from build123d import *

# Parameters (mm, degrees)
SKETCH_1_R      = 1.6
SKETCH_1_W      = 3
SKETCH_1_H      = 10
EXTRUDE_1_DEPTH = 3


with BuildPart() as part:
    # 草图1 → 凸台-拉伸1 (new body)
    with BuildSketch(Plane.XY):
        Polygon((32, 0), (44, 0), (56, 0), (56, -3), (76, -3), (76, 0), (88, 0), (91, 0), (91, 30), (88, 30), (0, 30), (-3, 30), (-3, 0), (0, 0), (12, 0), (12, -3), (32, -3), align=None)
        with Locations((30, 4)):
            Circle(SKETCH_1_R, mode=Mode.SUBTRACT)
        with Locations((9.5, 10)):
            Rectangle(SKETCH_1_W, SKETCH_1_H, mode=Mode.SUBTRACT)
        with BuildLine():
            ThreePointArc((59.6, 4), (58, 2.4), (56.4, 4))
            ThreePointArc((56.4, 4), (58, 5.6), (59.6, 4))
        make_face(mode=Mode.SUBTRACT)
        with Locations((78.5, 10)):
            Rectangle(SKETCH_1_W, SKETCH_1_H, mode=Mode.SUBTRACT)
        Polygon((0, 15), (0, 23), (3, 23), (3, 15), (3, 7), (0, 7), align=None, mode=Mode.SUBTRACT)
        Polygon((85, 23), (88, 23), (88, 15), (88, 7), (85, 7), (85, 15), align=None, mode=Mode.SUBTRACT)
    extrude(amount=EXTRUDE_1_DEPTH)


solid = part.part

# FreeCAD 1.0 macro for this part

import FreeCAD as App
import Part
import Sketcher

doc = App.newDocument("Part")
params = doc.addObject("Spreadsheet::Sheet", "Params")
for row, (alias, value) in enumerate([
    ("sketch1_diameter", "3.2 mm"),
    ("sketch1_width", "24 mm"),
    ("sketch1_width2", "20 mm"),
    ("sketch1_width3", "15 mm"),
    ("sketch1_width4", "3 mm"),
    ("pad1_length", "3 mm"),
], start=1):
    params.set(f"A{row}", alias)
    params.set(f"B{row}", "=" + value)
    params.setAlias(f"B{row}", alias)

body = doc.addObject("PartDesign::Body", "Body")

sketch1 = doc.addObject("Sketcher::SketchObject", "Sketch")
body.addObject(sketch1)
sketch1.AttachmentSupport = (doc.XY_Plane, [""])
sketch1.MapMode = "FlatFace"
sketch1.addGeometry(Part.LineSegment(App.Vector(32, 0, 0), App.Vector(56, 0, 0)), False)
sketch1.addGeometry(Part.LineSegment(App.Vector(56, 0, 0), App.Vector(56, -3, 0)), False)
sketch1.addGeometry(Part.LineSegment(App.Vector(56, -3, 0), App.Vector(76, -3, 0)), False)
sketch1.addGeometry(Part.LineSegment(App.Vector(76, -3, 0), App.Vector(76, 0, 0)), False)
sketch1.addGeometry(Part.LineSegment(App.Vector(76, 0, 0), App.Vector(91, 0, 0)), False)
sketch1.addGeometry(Part.LineSegment(App.Vector(91, 0, 0), App.Vector(91, 30, 0)), False)
sketch1.addGeometry(Part.LineSegment(App.Vector(91, 30, 0), App.Vector(-3, 30, 0)), False)
sketch1.addGeometry(Part.LineSegment(App.Vector(-3, 30, 0), App.Vector(-3, 0, 0)), False)
sketch1.addGeometry(Part.LineSegment(App.Vector(-3, 0, 0), App.Vector(12, 0, 0)), False)
sketch1.addGeometry(Part.LineSegment(App.Vector(12, 0, 0), App.Vector(12, -3, 0)), False)
sketch1.addGeometry(Part.LineSegment(App.Vector(12, -3, 0), App.Vector(32, -3, 0)), False)
sketch1.addGeometry(Part.LineSegment(App.Vector(32, -3, 0), App.Vector(32, 0, 0)), False)
sketch1.addGeometry(Part.Circle(App.Vector(30, 4, 0), App.Vector(0, 0, 1), 1.6), False)
sketch1.addGeometry(Part.LineSegment(App.Vector(11, 5, 0), App.Vector(8, 5, 0)), False)
sketch1.addGeometry(Part.LineSegment(App.Vector(8, 5, 0), App.Vector(8, 15, 0)), False)
sketch1.addGeometry(Part.LineSegment(App.Vector(8, 15, 0), App.Vector(11, 15, 0)), False)
sketch1.addGeometry(Part.LineSegment(App.Vector(11, 15, 0), App.Vector(11, 5, 0)), False)
sketch1.addGeometry(Part.Circle(App.Vector(58, 4, 0), App.Vector(0, 0, 1), 1.6), False)
sketch1.addGeometry(Part.LineSegment(App.Vector(80, 5, 0), App.Vector(77, 5, 0)), False)
sketch1.addGeometry(Part.LineSegment(App.Vector(77, 5, 0), App.Vector(77, 15, 0)), False)
sketch1.addGeometry(Part.LineSegment(App.Vector(77, 15, 0), App.Vector(80, 15, 0)), False)
sketch1.addGeometry(Part.LineSegment(App.Vector(80, 15, 0), App.Vector(80, 5, 0)), False)
sketch1.addGeometry(Part.LineSegment(App.Vector(0, 7, 0), App.Vector(0, 23, 0)), False)
sketch1.addGeometry(Part.LineSegment(App.Vector(0, 23, 0), App.Vector(3, 23, 0)), False)
sketch1.addGeometry(Part.LineSegment(App.Vector(3, 23, 0), App.Vector(3, 7, 0)), False)
sketch1.addGeometry(Part.LineSegment(App.Vector(3, 7, 0), App.Vector(0, 7, 0)), False)
sketch1.addGeometry(Part.LineSegment(App.Vector(85, 7, 0), App.Vector(85, 23, 0)), False)
sketch1.addGeometry(Part.LineSegment(App.Vector(85, 23, 0), App.Vector(88, 23, 0)), False)
sketch1.addGeometry(Part.LineSegment(App.Vector(88, 23, 0), App.Vector(88, 7, 0)), False)
sketch1.addGeometry(Part.LineSegment(App.Vector(88, 7, 0), App.Vector(85, 7, 0)), False)
sketch1.addConstraint(Sketcher.Constraint("Coincident", 0, 2, 1, 1))
sketch1.addConstraint(Sketcher.Constraint("Coincident", 1, 2, 2, 1))
sketch1.addConstraint(Sketcher.Constraint("Coincident", 2, 2, 3, 1))
sketch1.addConstraint(Sketcher.Constraint("Coincident", 3, 2, 4, 1))
sketch1.addConstraint(Sketcher.Constraint("Coincident", 4, 2, 5, 1))
sketch1.addConstraint(Sketcher.Constraint("Coincident", 5, 2, 6, 1))
sketch1.addConstraint(Sketcher.Constraint("Coincident", 6, 2, 7, 1))
sketch1.addConstraint(Sketcher.Constraint("Coincident", 7, 2, 8, 1))
sketch1.addConstraint(Sketcher.Constraint("Coincident", 8, 2, 9, 1))
sketch1.addConstraint(Sketcher.Constraint("Coincident", 9, 2, 10, 1))
sketch1.addConstraint(Sketcher.Constraint("Coincident", 10, 2, 11, 1))
sketch1.addConstraint(Sketcher.Constraint("Coincident", 11, 2, 0, 1))
sketch1.addConstraint(Sketcher.Constraint("Coincident", 13, 2, 14, 1))
sketch1.addConstraint(Sketcher.Constraint("Coincident", 14, 2, 15, 1))
sketch1.addConstraint(Sketcher.Constraint("Coincident", 15, 2, 16, 1))
sketch1.addConstraint(Sketcher.Constraint("Coincident", 16, 2, 13, 1))
sketch1.addConstraint(Sketcher.Constraint("Coincident", 18, 2, 19, 1))
sketch1.addConstraint(Sketcher.Constraint("Coincident", 19, 2, 20, 1))
sketch1.addConstraint(Sketcher.Constraint("Coincident", 20, 2, 21, 1))
sketch1.addConstraint(Sketcher.Constraint("Coincident", 21, 2, 18, 1))
sketch1.addConstraint(Sketcher.Constraint("Coincident", 22, 2, 23, 1))
sketch1.addConstraint(Sketcher.Constraint("Coincident", 23, 2, 24, 1))
sketch1.addConstraint(Sketcher.Constraint("Coincident", 24, 2, 25, 1))
sketch1.addConstraint(Sketcher.Constraint("Coincident", 25, 2, 22, 1))
sketch1.addConstraint(Sketcher.Constraint("Coincident", 26, 2, 27, 1))
sketch1.addConstraint(Sketcher.Constraint("Coincident", 27, 2, 28, 1))
sketch1.addConstraint(Sketcher.Constraint("Coincident", 28, 2, 29, 1))
sketch1.addConstraint(Sketcher.Constraint("Coincident", 29, 2, 26, 1))
sketch1.addConstraint(Sketcher.Constraint("Horizontal", 0))
sketch1.addConstraint(Sketcher.Constraint("Vertical", 1))
sketch1.addConstraint(Sketcher.Constraint("Horizontal", 2))
sketch1.addConstraint(Sketcher.Constraint("Vertical", 3))
sketch1.addConstraint(Sketcher.Constraint("Horizontal", 4))
sketch1.addConstraint(Sketcher.Constraint("Vertical", 5))
sketch1.addConstraint(Sketcher.Constraint("Horizontal", 6))
sketch1.addConstraint(Sketcher.Constraint("Vertical", 7))
sketch1.addConstraint(Sketcher.Constraint("Horizontal", 8))
sketch1.addConstraint(Sketcher.Constraint("Vertical", 9))
sketch1.addConstraint(Sketcher.Constraint("Horizontal", 10))
sketch1.addConstraint(Sketcher.Constraint("Vertical", 11))
sketch1.addConstraint(Sketcher.Constraint("Horizontal", 13))
sketch1.addConstraint(Sketcher.Constraint("Vertical", 14))
sketch1.addConstraint(Sketcher.Constraint("Horizontal", 15))
sketch1.addConstraint(Sketcher.Constraint("Vertical", 16))
sketch1.addConstraint(Sketcher.Constraint("Horizontal", 18))
sketch1.addConstraint(Sketcher.Constraint("Vertical", 19))
sketch1.addConstraint(Sketcher.Constraint("Horizontal", 20))
sketch1.addConstraint(Sketcher.Constraint("Vertical", 21))
sketch1.addConstraint(Sketcher.Constraint("Vertical", 22))
sketch1.addConstraint(Sketcher.Constraint("Horizontal", 23))
sketch1.addConstraint(Sketcher.Constraint("Vertical", 24))
sketch1.addConstraint(Sketcher.Constraint("Horizontal", 25))
sketch1.addConstraint(Sketcher.Constraint("Vertical", 26))
sketch1.addConstraint(Sketcher.Constraint("Horizontal", 27))
sketch1.addConstraint(Sketcher.Constraint("Vertical", 28))
sketch1.addConstraint(Sketcher.Constraint("Horizontal", 29))
sketch1.addConstraint(Sketcher.Constraint("Equal", 12, 17))
sketch1.addConstraint(Sketcher.Constraint("PointOnObject", 0, 2, -1))
sketch1.addConstraint(Sketcher.Constraint("PointOnObject", 3, 2, -1))
sketch1.addConstraint(Sketcher.Constraint("PointOnObject", 7, 2, -1))
sketch1.addConstraint(Sketcher.Constraint("PointOnObject", 22, 2, -2))
sketch1.addConstraint(Sketcher.Constraint("Horizontal", 12, 3, 17, 3))
sketch1.addConstraint(Sketcher.Constraint("Horizontal", 2, 2, 9, 2))
sketch1.addConstraint(Sketcher.Constraint("Horizontal", 16, 2, 18, 2))
sketch1.addConstraint(Sketcher.Constraint("Horizontal", 15, 2, 19, 2))
sketch1.addConstraint(Sketcher.Constraint("Horizontal", 23, 2, 26, 2))
sketch1.addConstraint(Sketcher.Constraint("Horizontal", 25, 2, 28, 2))
sketch1.addConstraint(Sketcher.Constraint("Equal", 4, 8))
sketch1.addConstraint(Sketcher.Constraint("Equal", 2, 10))
sketch1.addConstraint(Sketcher.Constraint("Equal", 15, 18))
sketch1.addConstraint(Sketcher.Constraint("Equal", 20, 23))
sketch1.addConstraint(Sketcher.Constraint("Equal", 25, 27))
sketch1.addConstraint(Sketcher.Constraint("Equal", 29, 1))
sketch1.addConstraint(Sketcher.Constraint("Diameter", 12, 3.2))
sketch1.addConstraint(Sketcher.Constraint("DistanceX", 0, 1, 0, 2, 24.0))
sketch1.addConstraint(Sketcher.Constraint("DistanceX", 2, 1, 2, 2, 20.0))
sketch1.addConstraint(Sketcher.Constraint("DistanceX", 4, 1, 4, 2, 15.0))
sketch1.addConstraint(Sketcher.Constraint("DistanceX", 13, 2, 13, 1, 3.0))
sketch1.addConstraint(Sketcher.Constraint("DistanceY", 5, 1, 5, 2, 30.0))
sketch1.addConstraint(Sketcher.Constraint("DistanceY", 14, 1, 14, 2, 10.0))
sketch1.addConstraint(Sketcher.Constraint("DistanceY", 22, 1, 22, 2, 16.0))
sketch1.addConstraint(Sketcher.Constraint("DistanceX", -1, 1, 12, 3, 30.0))
sketch1.addConstraint(Sketcher.Constraint("DistanceY", -1, 1, 12, 3, 4.0))
sketch1.addConstraint(Sketcher.Constraint("DistanceX", -1, 1, 17, 3, 58.0))
sketch1.addConstraint(Sketcher.Constraint("DistanceX", -1, 1, 0, 2, 56.0))
sketch1.addConstraint(Sketcher.Constraint("DistanceX", -1, 1, 13, 2, 8.0))
sketch1.addConstraint(Sketcher.Constraint("DistanceY", -1, 1, 13, 2, 5.0))
sketch1.addConstraint(Sketcher.Constraint("DistanceX", -1, 1, 18, 2, 77.0))
sketch1.addConstraint(Sketcher.Constraint("DistanceY", -1, 1, 22, 2, 23.0))
sketch1.addConstraint(Sketcher.Constraint("DistanceX", -1, 1, 26, 2, 85.0))
sketch1.setExpression("Constraints[73]", "Params.sketch1_diameter")
sketch1.setExpression("Constraints[74]", "Params.sketch1_width")
sketch1.setExpression("Constraints[75]", "Params.sketch1_width2")
sketch1.setExpression("Constraints[76]", "Params.sketch1_width3")
sketch1.setExpression("Constraints[77]", "Params.sketch1_width4")
pad1 = doc.addObject("PartDesign::Pad", "Pad")
body.addObject(pad1)
pad1.Profile = sketch1
pad1.setExpression("Length", "Params.pad1_length")

doc.recompute()
